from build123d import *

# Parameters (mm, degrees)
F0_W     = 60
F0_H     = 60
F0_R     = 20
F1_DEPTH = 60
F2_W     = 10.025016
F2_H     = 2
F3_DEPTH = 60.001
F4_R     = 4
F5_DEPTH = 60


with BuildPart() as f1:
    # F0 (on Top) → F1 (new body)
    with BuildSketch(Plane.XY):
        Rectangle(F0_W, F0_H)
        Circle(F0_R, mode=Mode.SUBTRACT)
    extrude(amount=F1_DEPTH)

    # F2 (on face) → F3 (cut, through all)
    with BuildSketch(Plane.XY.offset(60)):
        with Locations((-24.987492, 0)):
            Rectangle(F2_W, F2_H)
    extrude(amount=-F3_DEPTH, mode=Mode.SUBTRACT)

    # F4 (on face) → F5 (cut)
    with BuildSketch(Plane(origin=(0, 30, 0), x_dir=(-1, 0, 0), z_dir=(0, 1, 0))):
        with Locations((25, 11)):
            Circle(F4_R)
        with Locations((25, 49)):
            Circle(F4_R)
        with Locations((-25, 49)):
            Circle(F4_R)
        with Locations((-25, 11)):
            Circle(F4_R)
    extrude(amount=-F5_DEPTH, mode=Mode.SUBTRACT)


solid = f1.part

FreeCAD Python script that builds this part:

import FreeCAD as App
import Part
import Sketcher

doc = App.newDocument("Part")
body = doc.addObject("PartDesign::Body", "Body")

# Sketch on XY plane
sketch1 = body.newObject("Sketcher::SketchObject", "Sketch")
sketch1.AttachmentSupport = (doc.getObject("XY_Plane"), [""])
sketch1.MapMode = "FlatFace"
sketch1.addGeometry([
    Part.LineSegment(App.Vector(-30, 30, 0), App.Vector(-30, -30, 0)),  # 0
    Part.LineSegment(App.Vector(-30, -30, 0), App.Vector(30, -30, 0)),  # 1
    Part.LineSegment(App.Vector(30, -30, 0), App.Vector(30, 30, 0)),  # 2
    Part.LineSegment(App.Vector(30, 30, 0), App.Vector(-30, 30, 0)),  # 3
    Part.Circle(App.Vector(0, 0, 0), App.Vector(0, 0, 1), 20),  # 4
], False)
sketch1.addConstraint([
    Sketcher.Constraint("Coincident", 0, 2, 1, 1),
    Sketcher.Constraint("Coincident", 1, 2, 2, 1),
    Sketcher.Constraint("Coincident", 2, 2, 3, 1),
    Sketcher.Constraint("Coincident", 3, 2, 0, 1),
    Sketcher.Constraint("Vertical", 0),
    Sketcher.Constraint("Horizontal", 1),
    Sketcher.Constraint("Vertical", 2),
    Sketcher.Constraint("Horizontal", 3),
    Sketcher.Constraint("Coincident", 4, 3, -1, 1),
    Sketcher.Constraint("Symmetric", 0, 2, 2, 2, -1, 1),
    Sketcher.Constraint("Equal", 3, 0),
    Sketcher.Constraint("Diameter", 4, 40.0),
    Sketcher.Constraint("DistanceX", 1, 1, 1, 2, 60.0),
])
pad1 = body.newObject("PartDesign::Pad", "Pad")
pad1.Profile = sketch1
pad1.Length = 60

# Sketch on XY plane
sketch2 = body.newObject("Sketcher::SketchObject", "Sketch001")
sketch2.AttachmentSupport = (doc.getObject("XY_Plane"), [""])
sketch2.MapMode = "FlatFace"
sketch2.AttachmentOffset = App.Placement(App.Vector(0, 0, 60), App.Rotation())
sketch2.addGeometry([
    Part.LineSegment(App.Vector(-30, 1, 0), App.Vector(-30, -1, 0)),
    Part.LineSegment(App.Vector(-30, -1, 0), App.Vector(-20, -1, 0)),
    Part.LineSegment(App.Vector(-20, -1, 0), App.Vector(-20, 1, 0)),
    Part.LineSegment(App.Vector(-20, 1, 0), App.Vector(-30, 1, 0)),
], False)
sketch2.addConstraint([
    Sketcher.Constraint("Coincident", 0, 2, 1, 1),
    Sketcher.Constraint("Coincident", 1, 2, 2, 1),
    Sketcher.Constraint("Coincident", 2, 2, 3, 1),
    Sketcher.Constraint("Coincident", 3, 2, 0, 1),
    Sketcher.Constraint("Vertical", 0),
    Sketcher.Constraint("Horizontal", 1),
    Sketcher.Constraint("Vertical", 2),
    Sketcher.Constraint("Horizontal", 3),
    Sketcher.Constraint("DistanceY", 0, 2, 0, 1, 2.0),
    Sketcher.Constraint("DistanceX", 0, 2, -1, 1, 30.0),
    Sketcher.Constraint("DistanceY", 0, 2, -1, 1, 1.0),
    Sketcher.Constraint("DistanceX", 1, 1, 1, 2, 10.025016),
])
pocket1 = body.newObject("PartDesign::Pocket", "Pocket")
pocket1.Profile = sketch2
pocket1.Type = "ThroughAll"

# Sketch on XZ plane
sketch3 = body.newObject("Sketcher::SketchObject", "Sketch002")
sketch3.AttachmentSupport = (doc.getObject("XZ_Plane"), [""])
sketch3.MapMode = "FlatFace"
sketch3.AttachmentOffset = App.Placement(App.Vector(0, 0, -30), App.Rotation())
sketch3.addGeometry([
    Part.Circle(App.Vector(-25, 11, 0), App.Vector(0, 0, 1), 4),
    Part.Circle(App.Vector(-25, 49, 0), App.Vector(0, 0, 1), 4),
    Part.Circle(App.Vector(25, 49, 0), App.Vector(0, 0, 1), 4),
    Part.Circle(App.Vector(25, 11, 0), App.Vector(0, 0, 1), 4),
], False)
sketch3.addConstraint([
    Sketcher.Constraint("Equal", 0, 1),
    Sketcher.Constraint("Equal", 1, 2),
    Sketcher.Constraint("Equal", 2, 3),
    Sketcher.Constraint("Symmetric", 1, 3, 2, 3, -2),
    Sketcher.Constraint("Symmetric", 0, 3, 3, 3, -2),
    Sketcher.Constraint("Vertical", 0, 3, 1, 3),
    Sketcher.Constraint("Diameter", 0, 8.0),
    Sketcher.Constraint("DistanceX", 0, 3, -1, 1, 25.0),
    Sketcher.Constraint("DistanceY", -1, 1, 0, 3, 11.0),
    Sketcher.Constraint("DistanceY", -1, 1, 1, 3, 49.0),
])
pocket2 = body.newObject("PartDesign::Pocket", "Pocket001")
pocket2.Profile = sketch3
pocket2.Length = 60
pocket2.Reversed = True

doc.recompute()
